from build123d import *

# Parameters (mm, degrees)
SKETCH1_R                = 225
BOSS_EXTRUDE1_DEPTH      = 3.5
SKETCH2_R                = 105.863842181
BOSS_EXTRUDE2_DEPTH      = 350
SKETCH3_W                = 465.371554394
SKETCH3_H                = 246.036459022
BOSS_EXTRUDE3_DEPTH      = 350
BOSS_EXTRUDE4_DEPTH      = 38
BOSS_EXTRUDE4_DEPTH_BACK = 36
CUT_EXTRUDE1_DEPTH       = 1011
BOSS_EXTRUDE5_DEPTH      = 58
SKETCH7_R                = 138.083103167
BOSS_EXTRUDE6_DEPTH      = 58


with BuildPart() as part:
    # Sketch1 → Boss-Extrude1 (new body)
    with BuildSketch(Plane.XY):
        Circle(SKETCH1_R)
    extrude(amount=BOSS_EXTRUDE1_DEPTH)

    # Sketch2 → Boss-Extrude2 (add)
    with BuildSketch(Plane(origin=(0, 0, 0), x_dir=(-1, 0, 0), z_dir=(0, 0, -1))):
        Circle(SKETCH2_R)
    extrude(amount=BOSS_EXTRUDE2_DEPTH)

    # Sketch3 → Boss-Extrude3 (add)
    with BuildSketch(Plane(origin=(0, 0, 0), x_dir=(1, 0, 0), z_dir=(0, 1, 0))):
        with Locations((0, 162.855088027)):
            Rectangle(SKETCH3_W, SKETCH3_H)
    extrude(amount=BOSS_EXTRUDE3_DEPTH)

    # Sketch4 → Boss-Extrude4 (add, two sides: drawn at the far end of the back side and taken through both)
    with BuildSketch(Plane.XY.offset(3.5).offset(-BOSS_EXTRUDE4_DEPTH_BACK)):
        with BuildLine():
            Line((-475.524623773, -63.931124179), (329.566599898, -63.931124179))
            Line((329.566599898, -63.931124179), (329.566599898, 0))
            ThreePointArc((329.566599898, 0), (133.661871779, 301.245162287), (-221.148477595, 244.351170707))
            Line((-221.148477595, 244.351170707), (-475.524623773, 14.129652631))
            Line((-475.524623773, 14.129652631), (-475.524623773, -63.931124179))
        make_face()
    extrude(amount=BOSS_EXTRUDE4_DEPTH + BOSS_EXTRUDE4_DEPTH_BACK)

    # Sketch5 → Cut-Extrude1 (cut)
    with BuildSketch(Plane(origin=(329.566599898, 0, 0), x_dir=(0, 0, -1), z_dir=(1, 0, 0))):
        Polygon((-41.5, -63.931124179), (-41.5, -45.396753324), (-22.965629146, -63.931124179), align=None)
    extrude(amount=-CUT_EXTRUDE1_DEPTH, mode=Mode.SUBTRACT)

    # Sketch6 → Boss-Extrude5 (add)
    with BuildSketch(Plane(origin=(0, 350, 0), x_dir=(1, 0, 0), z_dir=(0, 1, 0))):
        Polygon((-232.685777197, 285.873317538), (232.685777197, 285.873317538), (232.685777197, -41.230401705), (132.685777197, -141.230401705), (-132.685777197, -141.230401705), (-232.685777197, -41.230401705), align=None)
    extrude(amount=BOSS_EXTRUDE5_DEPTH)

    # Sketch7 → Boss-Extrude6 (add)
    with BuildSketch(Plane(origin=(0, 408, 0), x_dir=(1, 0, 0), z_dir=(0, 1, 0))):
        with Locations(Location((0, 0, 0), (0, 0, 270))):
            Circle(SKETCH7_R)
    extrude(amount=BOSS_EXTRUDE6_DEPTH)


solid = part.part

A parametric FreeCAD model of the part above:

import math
import FreeCAD as App
import Part
import Sketcher
Q = App.Units.Quantity


def add_polygon(sketch, points):
    """Adds a closed chain of lines whose ends are joined by coincident constraints."""
    first, n = sketch.GeometryCount, len(points)
    for a, b in zip(points, points[1:] + points[:1]):
        sketch.addGeometry(Part.LineSegment(App.Vector(*a, 0), App.Vector(*b, 0)), False)
    for i in range(n):
        sketch.addConstraint(Sketcher.Constraint("Coincident", first + i, 2, first + (i + 1) % n, 1))

doc = App.newDocument("Part")
body = doc.addObject("PartDesign::Body", "Body")

# Sketch on XY plane
sketch1 = body.newObject("Sketcher::SketchObject", "Sketch")
sketch1.AttachmentSupport = (doc.getObject("XY_Plane"), [""])
sketch1.MapMode = "FlatFace"
sketch1.addGeometry(Part.Circle(App.Vector(0, 0, 0), App.Vector(0, 0, 1), 225), False)
sketch1.addConstraint(Sketcher.Constraint("Coincident", 0, 3, -1, 1))
sketch1.addConstraint(Sketcher.Constraint("Diameter", 0, Q("450 mm")))
pad1 = body.newObject("PartDesign::Pad", "Pad")
pad1.Profile = sketch1
pad1.Length = 3.5

# Sketch on XY plane
sketch2 = body.newObject("Sketcher::SketchObject", "Sketch001")
sketch2.AttachmentSupport = (doc.getObject("XY_Plane"), [""])
sketch2.MapMode = "FlatFace"
sketch2.addGeometry(Part.Circle(App.Vector(0, 0, 0), App.Vector(0, 0, 1), 106), False)
sketch2.addConstraint(Sketcher.Constraint("Coincident", 0, 3, -1, 1))
sketch2.addConstraint(Sketcher.Constraint("Diameter", 0, Q("211.727684 mm")))
pad2 = body.newObject("PartDesign::Pad", "Pad001")
pad2.Profile = sketch2
pad2.Length = 350
pad2.Reversed = True

# Sketch on XZ plane
sketch3 = body.newObject("Sketcher::SketchObject", "Sketch002")
sketch3.AttachmentSupport = (doc.getObject("XZ_Plane"), [""])
sketch3.MapMode = "FlatFace"
add_polygon(sketch3, [(-233, -286), (-233, -40), (233, -40), (233, -286)])  # lines 0-3
sketch3.addConstraint(Sketcher.Constraint("Vertical", 0))
sketch3.addConstraint(Sketcher.Constraint("Horizontal", 1))
sketch3.addConstraint(Sketcher.Constraint("Vertical", 2))
sketch3.addConstraint(Sketcher.Constraint("Horizontal", 3))
sketch3.addConstraint(Sketcher.Constraint("DistanceY", 0, 1, 0, 2, Q("246.036459 mm")))
sketch3.addConstraint(Sketcher.Constraint("DistanceX", 1, 1, 1, 2, Q("465.371554 mm")))
sketch3.addConstraint(Sketcher.Constraint("DistanceY", 0, 2, -1, 1, Q("39.836859 mm")))
sketch3.addConstraint(Sketcher.Constraint("DistanceX", 0, 2, -1, 1, Q("232.685777 mm")))
pad3 = body.newObject("PartDesign::Pad", "Pad002")
pad3.Profile = sketch3
pad3.Length = 350
pad3.Reversed = True

# Sketch on XY plane
sketch4 = body.newObject("Sketcher::SketchObject", "Sketch003")
sketch4.AttachmentSupport = (doc.getObject("XY_Plane"), [""])
sketch4.MapMode = "FlatFace"
sketch4.AttachmentOffset = App.Placement(App.Vector(0, 0, 3.5), App.Rotation())
sketch4.addGeometry(Part.LineSegment(App.Vector(-476, -64, 0), App.Vector(330, -64, 0)), False)
sketch4.addGeometry(Part.LineSegment(App.Vector(330, -64, 0), App.Vector(330, 0, 0)), False)
sketch4.addGeometry(Part.ArcOfCircle(Part.Circle(App.Vector(0, 0, 0), App.Vector(0, 0, 1), 330), math.radians(0), math.radians(132)), False)
sketch4.addGeometry(Part.LineSegment(App.Vector(-221, 244, 0), App.Vector(-476, 14, 0)), False)
sketch4.addGeometry(Part.LineSegment(App.Vector(-476, 14, 0), App.Vector(-476, -64, 0)), False)
sketch4.addConstraint(Sketcher.Constraint("Coincident", 0, 2, 1, 1))
sketch4.addConstraint(Sketcher.Constraint("Tangent", 1, 2, 2, 1))
sketch4.addConstraint(Sketcher.Constraint("Tangent", 2, 2, 3, 1))
sketch4.addConstraint(Sketcher.Constraint("Coincident", 3, 2, 4, 1))
sketch4.addConstraint(Sketcher.Constraint("Coincident", 4, 2, 0, 1))
sketch4.addConstraint(Sketcher.Constraint("Horizontal", 0))
sketch4.addConstraint(Sketcher.Constraint("Vertical", 1))
sketch4.addConstraint(Sketcher.Constraint("Vertical", 4))
sketch4.addConstraint(Sketcher.Constraint("Coincident", 2, 3, -1, 1))
sketch4.addConstraint(Sketcher.Constraint("Radius", 2, Q("329.5666 mm")))
sketch4.addConstraint(Sketcher.Constraint("Distance", 3, Q("343.087702 mm")))
sketch4.addConstraint(Sketcher.Constraint("DistanceX", 0, 1, 0, 2, Q("805.091224 mm")))
sketch4.addConstraint(Sketcher.Constraint("DistanceY", 1, 1, 1, 2, Q("63.931124 mm")))
pad4 = body.newObject("PartDesign::Pad", "Pad003")
pad4.Profile = sketch4
pad4.Type = "TwoLengths"
pad4.Length = 38
pad4.Length2 = 36

# Sketch on YZ plane
sketch5 = body.newObject("Sketcher::SketchObject", "Sketch004")
sketch5.AttachmentSupport = (doc.getObject("YZ_Plane"), [""])
sketch5.MapMode = "FlatFace"
sketch5.AttachmentOffset = App.Placement(App.Vector(0, 0, 329.5666), App.Rotation())
add_polygon(sketch5, [(-45, 42), (-64, 42), (-64, 23)])  # lines 0-2
sketch5.addConstraint(Sketcher.Constraint("Horizontal", 0))
sketch5.addConstraint(Sketcher.Constraint("Vertical", 1))
sketch5.addConstraint(Sketcher.Constraint("Equal", 0, 1))
sketch5.addConstraint(Sketcher.Constraint("DistanceY", -1, 1, 0, 2, Q("41.5 mm")))
sketch5.addConstraint(Sketcher.Constraint("DistanceX", 0, 2, 0, 1, Q("18.534371 mm")))
sketch5.addConstraint(Sketcher.Constraint("DistanceX", 0, 2, -1, 1, Q("63.931124 mm")))
pocket1 = body.newObject("PartDesign::Pocket", "Pocket")
pocket1.Profile = sketch5
pocket1.Length = 1011

# Sketch on XZ plane
sketch6 = body.newObject("Sketcher::SketchObject", "Sketch005")
sketch6.AttachmentSupport = (doc.getObject("XZ_Plane"), [""])
sketch6.MapMode = "FlatFace"
sketch6.AttachmentOffset = App.Placement(App.Vector(0, 0, -350), App.Rotation())
add_polygon(sketch6, [(233, -286), (-233, -286), (-233, 41), (-133, 141), (133, 141), (233, 41)])  # lines 0-5
sketch6.addConstraint(Sketcher.Constraint("Horizontal", 0))
sketch6.addConstraint(Sketcher.Constraint("Vertical", 1))
sketch6.addConstraint(Sketcher.Constraint("Horizontal", 3))
sketch6.addConstraint(Sketcher.Constraint("Vertical", 5))
sketch6.addConstraint(Sketcher.Constraint("Symmetric", 1, 2, 4, 2, -2))
sketch6.addConstraint(Sketcher.Constraint("Perpendicular", 2, 4))
sketch6.addConstraint(Sketcher.Constraint("Equal", 2, 4))
sketch6.addConstraint(Sketcher.Constraint("DistanceX", 1, 2, 2, 2, Q("100 mm")))
sketch6.addConstraint(Sketcher.Constraint("DistanceY", 1, 1, 1, 2, Q("327.103719 mm")))
sketch6.addConstraint(Sketcher.Constraint("DistanceY", -1, 1, 1, 2, Q("41.230402 mm")))
sketch6.addConstraint(Sketcher.Constraint("DistanceX", 0, 2, 0, 1, Q("465.371554 mm")))
pad5 = body.newObject("PartDesign::Pad", "Pad004")
pad5.Profile = sketch6
pad5.Length = 58
pad5.Reversed = True

# Sketch on XZ plane
sketch7 = body.newObject("Sketcher::SketchObject", "Sketch006")
sketch7.AttachmentSupport = (doc.getObject("XZ_Plane"), [""])
sketch7.MapMode = "FlatFace"
sketch7.AttachmentOffset = App.Placement(App.Vector(0, 0, -408), App.Rotation())
sketch7.addGeometry(Part.Circle(App.Vector(0, 0, 0), App.Vector(0, 0, 1), 138), False)
sketch7.addConstraint(Sketcher.Constraint("Coincident", 0, 3, -1, 1))
sketch7.addConstraint(Sketcher.Constraint("Diameter", 0, Q("276.166206 mm")))
pad6 = body.newObject("PartDesign::Pad", "Pad005")
pad6.Profile = sketch7
pad6.Length = 58
pad6.Reversed = True

doc.recompute()
